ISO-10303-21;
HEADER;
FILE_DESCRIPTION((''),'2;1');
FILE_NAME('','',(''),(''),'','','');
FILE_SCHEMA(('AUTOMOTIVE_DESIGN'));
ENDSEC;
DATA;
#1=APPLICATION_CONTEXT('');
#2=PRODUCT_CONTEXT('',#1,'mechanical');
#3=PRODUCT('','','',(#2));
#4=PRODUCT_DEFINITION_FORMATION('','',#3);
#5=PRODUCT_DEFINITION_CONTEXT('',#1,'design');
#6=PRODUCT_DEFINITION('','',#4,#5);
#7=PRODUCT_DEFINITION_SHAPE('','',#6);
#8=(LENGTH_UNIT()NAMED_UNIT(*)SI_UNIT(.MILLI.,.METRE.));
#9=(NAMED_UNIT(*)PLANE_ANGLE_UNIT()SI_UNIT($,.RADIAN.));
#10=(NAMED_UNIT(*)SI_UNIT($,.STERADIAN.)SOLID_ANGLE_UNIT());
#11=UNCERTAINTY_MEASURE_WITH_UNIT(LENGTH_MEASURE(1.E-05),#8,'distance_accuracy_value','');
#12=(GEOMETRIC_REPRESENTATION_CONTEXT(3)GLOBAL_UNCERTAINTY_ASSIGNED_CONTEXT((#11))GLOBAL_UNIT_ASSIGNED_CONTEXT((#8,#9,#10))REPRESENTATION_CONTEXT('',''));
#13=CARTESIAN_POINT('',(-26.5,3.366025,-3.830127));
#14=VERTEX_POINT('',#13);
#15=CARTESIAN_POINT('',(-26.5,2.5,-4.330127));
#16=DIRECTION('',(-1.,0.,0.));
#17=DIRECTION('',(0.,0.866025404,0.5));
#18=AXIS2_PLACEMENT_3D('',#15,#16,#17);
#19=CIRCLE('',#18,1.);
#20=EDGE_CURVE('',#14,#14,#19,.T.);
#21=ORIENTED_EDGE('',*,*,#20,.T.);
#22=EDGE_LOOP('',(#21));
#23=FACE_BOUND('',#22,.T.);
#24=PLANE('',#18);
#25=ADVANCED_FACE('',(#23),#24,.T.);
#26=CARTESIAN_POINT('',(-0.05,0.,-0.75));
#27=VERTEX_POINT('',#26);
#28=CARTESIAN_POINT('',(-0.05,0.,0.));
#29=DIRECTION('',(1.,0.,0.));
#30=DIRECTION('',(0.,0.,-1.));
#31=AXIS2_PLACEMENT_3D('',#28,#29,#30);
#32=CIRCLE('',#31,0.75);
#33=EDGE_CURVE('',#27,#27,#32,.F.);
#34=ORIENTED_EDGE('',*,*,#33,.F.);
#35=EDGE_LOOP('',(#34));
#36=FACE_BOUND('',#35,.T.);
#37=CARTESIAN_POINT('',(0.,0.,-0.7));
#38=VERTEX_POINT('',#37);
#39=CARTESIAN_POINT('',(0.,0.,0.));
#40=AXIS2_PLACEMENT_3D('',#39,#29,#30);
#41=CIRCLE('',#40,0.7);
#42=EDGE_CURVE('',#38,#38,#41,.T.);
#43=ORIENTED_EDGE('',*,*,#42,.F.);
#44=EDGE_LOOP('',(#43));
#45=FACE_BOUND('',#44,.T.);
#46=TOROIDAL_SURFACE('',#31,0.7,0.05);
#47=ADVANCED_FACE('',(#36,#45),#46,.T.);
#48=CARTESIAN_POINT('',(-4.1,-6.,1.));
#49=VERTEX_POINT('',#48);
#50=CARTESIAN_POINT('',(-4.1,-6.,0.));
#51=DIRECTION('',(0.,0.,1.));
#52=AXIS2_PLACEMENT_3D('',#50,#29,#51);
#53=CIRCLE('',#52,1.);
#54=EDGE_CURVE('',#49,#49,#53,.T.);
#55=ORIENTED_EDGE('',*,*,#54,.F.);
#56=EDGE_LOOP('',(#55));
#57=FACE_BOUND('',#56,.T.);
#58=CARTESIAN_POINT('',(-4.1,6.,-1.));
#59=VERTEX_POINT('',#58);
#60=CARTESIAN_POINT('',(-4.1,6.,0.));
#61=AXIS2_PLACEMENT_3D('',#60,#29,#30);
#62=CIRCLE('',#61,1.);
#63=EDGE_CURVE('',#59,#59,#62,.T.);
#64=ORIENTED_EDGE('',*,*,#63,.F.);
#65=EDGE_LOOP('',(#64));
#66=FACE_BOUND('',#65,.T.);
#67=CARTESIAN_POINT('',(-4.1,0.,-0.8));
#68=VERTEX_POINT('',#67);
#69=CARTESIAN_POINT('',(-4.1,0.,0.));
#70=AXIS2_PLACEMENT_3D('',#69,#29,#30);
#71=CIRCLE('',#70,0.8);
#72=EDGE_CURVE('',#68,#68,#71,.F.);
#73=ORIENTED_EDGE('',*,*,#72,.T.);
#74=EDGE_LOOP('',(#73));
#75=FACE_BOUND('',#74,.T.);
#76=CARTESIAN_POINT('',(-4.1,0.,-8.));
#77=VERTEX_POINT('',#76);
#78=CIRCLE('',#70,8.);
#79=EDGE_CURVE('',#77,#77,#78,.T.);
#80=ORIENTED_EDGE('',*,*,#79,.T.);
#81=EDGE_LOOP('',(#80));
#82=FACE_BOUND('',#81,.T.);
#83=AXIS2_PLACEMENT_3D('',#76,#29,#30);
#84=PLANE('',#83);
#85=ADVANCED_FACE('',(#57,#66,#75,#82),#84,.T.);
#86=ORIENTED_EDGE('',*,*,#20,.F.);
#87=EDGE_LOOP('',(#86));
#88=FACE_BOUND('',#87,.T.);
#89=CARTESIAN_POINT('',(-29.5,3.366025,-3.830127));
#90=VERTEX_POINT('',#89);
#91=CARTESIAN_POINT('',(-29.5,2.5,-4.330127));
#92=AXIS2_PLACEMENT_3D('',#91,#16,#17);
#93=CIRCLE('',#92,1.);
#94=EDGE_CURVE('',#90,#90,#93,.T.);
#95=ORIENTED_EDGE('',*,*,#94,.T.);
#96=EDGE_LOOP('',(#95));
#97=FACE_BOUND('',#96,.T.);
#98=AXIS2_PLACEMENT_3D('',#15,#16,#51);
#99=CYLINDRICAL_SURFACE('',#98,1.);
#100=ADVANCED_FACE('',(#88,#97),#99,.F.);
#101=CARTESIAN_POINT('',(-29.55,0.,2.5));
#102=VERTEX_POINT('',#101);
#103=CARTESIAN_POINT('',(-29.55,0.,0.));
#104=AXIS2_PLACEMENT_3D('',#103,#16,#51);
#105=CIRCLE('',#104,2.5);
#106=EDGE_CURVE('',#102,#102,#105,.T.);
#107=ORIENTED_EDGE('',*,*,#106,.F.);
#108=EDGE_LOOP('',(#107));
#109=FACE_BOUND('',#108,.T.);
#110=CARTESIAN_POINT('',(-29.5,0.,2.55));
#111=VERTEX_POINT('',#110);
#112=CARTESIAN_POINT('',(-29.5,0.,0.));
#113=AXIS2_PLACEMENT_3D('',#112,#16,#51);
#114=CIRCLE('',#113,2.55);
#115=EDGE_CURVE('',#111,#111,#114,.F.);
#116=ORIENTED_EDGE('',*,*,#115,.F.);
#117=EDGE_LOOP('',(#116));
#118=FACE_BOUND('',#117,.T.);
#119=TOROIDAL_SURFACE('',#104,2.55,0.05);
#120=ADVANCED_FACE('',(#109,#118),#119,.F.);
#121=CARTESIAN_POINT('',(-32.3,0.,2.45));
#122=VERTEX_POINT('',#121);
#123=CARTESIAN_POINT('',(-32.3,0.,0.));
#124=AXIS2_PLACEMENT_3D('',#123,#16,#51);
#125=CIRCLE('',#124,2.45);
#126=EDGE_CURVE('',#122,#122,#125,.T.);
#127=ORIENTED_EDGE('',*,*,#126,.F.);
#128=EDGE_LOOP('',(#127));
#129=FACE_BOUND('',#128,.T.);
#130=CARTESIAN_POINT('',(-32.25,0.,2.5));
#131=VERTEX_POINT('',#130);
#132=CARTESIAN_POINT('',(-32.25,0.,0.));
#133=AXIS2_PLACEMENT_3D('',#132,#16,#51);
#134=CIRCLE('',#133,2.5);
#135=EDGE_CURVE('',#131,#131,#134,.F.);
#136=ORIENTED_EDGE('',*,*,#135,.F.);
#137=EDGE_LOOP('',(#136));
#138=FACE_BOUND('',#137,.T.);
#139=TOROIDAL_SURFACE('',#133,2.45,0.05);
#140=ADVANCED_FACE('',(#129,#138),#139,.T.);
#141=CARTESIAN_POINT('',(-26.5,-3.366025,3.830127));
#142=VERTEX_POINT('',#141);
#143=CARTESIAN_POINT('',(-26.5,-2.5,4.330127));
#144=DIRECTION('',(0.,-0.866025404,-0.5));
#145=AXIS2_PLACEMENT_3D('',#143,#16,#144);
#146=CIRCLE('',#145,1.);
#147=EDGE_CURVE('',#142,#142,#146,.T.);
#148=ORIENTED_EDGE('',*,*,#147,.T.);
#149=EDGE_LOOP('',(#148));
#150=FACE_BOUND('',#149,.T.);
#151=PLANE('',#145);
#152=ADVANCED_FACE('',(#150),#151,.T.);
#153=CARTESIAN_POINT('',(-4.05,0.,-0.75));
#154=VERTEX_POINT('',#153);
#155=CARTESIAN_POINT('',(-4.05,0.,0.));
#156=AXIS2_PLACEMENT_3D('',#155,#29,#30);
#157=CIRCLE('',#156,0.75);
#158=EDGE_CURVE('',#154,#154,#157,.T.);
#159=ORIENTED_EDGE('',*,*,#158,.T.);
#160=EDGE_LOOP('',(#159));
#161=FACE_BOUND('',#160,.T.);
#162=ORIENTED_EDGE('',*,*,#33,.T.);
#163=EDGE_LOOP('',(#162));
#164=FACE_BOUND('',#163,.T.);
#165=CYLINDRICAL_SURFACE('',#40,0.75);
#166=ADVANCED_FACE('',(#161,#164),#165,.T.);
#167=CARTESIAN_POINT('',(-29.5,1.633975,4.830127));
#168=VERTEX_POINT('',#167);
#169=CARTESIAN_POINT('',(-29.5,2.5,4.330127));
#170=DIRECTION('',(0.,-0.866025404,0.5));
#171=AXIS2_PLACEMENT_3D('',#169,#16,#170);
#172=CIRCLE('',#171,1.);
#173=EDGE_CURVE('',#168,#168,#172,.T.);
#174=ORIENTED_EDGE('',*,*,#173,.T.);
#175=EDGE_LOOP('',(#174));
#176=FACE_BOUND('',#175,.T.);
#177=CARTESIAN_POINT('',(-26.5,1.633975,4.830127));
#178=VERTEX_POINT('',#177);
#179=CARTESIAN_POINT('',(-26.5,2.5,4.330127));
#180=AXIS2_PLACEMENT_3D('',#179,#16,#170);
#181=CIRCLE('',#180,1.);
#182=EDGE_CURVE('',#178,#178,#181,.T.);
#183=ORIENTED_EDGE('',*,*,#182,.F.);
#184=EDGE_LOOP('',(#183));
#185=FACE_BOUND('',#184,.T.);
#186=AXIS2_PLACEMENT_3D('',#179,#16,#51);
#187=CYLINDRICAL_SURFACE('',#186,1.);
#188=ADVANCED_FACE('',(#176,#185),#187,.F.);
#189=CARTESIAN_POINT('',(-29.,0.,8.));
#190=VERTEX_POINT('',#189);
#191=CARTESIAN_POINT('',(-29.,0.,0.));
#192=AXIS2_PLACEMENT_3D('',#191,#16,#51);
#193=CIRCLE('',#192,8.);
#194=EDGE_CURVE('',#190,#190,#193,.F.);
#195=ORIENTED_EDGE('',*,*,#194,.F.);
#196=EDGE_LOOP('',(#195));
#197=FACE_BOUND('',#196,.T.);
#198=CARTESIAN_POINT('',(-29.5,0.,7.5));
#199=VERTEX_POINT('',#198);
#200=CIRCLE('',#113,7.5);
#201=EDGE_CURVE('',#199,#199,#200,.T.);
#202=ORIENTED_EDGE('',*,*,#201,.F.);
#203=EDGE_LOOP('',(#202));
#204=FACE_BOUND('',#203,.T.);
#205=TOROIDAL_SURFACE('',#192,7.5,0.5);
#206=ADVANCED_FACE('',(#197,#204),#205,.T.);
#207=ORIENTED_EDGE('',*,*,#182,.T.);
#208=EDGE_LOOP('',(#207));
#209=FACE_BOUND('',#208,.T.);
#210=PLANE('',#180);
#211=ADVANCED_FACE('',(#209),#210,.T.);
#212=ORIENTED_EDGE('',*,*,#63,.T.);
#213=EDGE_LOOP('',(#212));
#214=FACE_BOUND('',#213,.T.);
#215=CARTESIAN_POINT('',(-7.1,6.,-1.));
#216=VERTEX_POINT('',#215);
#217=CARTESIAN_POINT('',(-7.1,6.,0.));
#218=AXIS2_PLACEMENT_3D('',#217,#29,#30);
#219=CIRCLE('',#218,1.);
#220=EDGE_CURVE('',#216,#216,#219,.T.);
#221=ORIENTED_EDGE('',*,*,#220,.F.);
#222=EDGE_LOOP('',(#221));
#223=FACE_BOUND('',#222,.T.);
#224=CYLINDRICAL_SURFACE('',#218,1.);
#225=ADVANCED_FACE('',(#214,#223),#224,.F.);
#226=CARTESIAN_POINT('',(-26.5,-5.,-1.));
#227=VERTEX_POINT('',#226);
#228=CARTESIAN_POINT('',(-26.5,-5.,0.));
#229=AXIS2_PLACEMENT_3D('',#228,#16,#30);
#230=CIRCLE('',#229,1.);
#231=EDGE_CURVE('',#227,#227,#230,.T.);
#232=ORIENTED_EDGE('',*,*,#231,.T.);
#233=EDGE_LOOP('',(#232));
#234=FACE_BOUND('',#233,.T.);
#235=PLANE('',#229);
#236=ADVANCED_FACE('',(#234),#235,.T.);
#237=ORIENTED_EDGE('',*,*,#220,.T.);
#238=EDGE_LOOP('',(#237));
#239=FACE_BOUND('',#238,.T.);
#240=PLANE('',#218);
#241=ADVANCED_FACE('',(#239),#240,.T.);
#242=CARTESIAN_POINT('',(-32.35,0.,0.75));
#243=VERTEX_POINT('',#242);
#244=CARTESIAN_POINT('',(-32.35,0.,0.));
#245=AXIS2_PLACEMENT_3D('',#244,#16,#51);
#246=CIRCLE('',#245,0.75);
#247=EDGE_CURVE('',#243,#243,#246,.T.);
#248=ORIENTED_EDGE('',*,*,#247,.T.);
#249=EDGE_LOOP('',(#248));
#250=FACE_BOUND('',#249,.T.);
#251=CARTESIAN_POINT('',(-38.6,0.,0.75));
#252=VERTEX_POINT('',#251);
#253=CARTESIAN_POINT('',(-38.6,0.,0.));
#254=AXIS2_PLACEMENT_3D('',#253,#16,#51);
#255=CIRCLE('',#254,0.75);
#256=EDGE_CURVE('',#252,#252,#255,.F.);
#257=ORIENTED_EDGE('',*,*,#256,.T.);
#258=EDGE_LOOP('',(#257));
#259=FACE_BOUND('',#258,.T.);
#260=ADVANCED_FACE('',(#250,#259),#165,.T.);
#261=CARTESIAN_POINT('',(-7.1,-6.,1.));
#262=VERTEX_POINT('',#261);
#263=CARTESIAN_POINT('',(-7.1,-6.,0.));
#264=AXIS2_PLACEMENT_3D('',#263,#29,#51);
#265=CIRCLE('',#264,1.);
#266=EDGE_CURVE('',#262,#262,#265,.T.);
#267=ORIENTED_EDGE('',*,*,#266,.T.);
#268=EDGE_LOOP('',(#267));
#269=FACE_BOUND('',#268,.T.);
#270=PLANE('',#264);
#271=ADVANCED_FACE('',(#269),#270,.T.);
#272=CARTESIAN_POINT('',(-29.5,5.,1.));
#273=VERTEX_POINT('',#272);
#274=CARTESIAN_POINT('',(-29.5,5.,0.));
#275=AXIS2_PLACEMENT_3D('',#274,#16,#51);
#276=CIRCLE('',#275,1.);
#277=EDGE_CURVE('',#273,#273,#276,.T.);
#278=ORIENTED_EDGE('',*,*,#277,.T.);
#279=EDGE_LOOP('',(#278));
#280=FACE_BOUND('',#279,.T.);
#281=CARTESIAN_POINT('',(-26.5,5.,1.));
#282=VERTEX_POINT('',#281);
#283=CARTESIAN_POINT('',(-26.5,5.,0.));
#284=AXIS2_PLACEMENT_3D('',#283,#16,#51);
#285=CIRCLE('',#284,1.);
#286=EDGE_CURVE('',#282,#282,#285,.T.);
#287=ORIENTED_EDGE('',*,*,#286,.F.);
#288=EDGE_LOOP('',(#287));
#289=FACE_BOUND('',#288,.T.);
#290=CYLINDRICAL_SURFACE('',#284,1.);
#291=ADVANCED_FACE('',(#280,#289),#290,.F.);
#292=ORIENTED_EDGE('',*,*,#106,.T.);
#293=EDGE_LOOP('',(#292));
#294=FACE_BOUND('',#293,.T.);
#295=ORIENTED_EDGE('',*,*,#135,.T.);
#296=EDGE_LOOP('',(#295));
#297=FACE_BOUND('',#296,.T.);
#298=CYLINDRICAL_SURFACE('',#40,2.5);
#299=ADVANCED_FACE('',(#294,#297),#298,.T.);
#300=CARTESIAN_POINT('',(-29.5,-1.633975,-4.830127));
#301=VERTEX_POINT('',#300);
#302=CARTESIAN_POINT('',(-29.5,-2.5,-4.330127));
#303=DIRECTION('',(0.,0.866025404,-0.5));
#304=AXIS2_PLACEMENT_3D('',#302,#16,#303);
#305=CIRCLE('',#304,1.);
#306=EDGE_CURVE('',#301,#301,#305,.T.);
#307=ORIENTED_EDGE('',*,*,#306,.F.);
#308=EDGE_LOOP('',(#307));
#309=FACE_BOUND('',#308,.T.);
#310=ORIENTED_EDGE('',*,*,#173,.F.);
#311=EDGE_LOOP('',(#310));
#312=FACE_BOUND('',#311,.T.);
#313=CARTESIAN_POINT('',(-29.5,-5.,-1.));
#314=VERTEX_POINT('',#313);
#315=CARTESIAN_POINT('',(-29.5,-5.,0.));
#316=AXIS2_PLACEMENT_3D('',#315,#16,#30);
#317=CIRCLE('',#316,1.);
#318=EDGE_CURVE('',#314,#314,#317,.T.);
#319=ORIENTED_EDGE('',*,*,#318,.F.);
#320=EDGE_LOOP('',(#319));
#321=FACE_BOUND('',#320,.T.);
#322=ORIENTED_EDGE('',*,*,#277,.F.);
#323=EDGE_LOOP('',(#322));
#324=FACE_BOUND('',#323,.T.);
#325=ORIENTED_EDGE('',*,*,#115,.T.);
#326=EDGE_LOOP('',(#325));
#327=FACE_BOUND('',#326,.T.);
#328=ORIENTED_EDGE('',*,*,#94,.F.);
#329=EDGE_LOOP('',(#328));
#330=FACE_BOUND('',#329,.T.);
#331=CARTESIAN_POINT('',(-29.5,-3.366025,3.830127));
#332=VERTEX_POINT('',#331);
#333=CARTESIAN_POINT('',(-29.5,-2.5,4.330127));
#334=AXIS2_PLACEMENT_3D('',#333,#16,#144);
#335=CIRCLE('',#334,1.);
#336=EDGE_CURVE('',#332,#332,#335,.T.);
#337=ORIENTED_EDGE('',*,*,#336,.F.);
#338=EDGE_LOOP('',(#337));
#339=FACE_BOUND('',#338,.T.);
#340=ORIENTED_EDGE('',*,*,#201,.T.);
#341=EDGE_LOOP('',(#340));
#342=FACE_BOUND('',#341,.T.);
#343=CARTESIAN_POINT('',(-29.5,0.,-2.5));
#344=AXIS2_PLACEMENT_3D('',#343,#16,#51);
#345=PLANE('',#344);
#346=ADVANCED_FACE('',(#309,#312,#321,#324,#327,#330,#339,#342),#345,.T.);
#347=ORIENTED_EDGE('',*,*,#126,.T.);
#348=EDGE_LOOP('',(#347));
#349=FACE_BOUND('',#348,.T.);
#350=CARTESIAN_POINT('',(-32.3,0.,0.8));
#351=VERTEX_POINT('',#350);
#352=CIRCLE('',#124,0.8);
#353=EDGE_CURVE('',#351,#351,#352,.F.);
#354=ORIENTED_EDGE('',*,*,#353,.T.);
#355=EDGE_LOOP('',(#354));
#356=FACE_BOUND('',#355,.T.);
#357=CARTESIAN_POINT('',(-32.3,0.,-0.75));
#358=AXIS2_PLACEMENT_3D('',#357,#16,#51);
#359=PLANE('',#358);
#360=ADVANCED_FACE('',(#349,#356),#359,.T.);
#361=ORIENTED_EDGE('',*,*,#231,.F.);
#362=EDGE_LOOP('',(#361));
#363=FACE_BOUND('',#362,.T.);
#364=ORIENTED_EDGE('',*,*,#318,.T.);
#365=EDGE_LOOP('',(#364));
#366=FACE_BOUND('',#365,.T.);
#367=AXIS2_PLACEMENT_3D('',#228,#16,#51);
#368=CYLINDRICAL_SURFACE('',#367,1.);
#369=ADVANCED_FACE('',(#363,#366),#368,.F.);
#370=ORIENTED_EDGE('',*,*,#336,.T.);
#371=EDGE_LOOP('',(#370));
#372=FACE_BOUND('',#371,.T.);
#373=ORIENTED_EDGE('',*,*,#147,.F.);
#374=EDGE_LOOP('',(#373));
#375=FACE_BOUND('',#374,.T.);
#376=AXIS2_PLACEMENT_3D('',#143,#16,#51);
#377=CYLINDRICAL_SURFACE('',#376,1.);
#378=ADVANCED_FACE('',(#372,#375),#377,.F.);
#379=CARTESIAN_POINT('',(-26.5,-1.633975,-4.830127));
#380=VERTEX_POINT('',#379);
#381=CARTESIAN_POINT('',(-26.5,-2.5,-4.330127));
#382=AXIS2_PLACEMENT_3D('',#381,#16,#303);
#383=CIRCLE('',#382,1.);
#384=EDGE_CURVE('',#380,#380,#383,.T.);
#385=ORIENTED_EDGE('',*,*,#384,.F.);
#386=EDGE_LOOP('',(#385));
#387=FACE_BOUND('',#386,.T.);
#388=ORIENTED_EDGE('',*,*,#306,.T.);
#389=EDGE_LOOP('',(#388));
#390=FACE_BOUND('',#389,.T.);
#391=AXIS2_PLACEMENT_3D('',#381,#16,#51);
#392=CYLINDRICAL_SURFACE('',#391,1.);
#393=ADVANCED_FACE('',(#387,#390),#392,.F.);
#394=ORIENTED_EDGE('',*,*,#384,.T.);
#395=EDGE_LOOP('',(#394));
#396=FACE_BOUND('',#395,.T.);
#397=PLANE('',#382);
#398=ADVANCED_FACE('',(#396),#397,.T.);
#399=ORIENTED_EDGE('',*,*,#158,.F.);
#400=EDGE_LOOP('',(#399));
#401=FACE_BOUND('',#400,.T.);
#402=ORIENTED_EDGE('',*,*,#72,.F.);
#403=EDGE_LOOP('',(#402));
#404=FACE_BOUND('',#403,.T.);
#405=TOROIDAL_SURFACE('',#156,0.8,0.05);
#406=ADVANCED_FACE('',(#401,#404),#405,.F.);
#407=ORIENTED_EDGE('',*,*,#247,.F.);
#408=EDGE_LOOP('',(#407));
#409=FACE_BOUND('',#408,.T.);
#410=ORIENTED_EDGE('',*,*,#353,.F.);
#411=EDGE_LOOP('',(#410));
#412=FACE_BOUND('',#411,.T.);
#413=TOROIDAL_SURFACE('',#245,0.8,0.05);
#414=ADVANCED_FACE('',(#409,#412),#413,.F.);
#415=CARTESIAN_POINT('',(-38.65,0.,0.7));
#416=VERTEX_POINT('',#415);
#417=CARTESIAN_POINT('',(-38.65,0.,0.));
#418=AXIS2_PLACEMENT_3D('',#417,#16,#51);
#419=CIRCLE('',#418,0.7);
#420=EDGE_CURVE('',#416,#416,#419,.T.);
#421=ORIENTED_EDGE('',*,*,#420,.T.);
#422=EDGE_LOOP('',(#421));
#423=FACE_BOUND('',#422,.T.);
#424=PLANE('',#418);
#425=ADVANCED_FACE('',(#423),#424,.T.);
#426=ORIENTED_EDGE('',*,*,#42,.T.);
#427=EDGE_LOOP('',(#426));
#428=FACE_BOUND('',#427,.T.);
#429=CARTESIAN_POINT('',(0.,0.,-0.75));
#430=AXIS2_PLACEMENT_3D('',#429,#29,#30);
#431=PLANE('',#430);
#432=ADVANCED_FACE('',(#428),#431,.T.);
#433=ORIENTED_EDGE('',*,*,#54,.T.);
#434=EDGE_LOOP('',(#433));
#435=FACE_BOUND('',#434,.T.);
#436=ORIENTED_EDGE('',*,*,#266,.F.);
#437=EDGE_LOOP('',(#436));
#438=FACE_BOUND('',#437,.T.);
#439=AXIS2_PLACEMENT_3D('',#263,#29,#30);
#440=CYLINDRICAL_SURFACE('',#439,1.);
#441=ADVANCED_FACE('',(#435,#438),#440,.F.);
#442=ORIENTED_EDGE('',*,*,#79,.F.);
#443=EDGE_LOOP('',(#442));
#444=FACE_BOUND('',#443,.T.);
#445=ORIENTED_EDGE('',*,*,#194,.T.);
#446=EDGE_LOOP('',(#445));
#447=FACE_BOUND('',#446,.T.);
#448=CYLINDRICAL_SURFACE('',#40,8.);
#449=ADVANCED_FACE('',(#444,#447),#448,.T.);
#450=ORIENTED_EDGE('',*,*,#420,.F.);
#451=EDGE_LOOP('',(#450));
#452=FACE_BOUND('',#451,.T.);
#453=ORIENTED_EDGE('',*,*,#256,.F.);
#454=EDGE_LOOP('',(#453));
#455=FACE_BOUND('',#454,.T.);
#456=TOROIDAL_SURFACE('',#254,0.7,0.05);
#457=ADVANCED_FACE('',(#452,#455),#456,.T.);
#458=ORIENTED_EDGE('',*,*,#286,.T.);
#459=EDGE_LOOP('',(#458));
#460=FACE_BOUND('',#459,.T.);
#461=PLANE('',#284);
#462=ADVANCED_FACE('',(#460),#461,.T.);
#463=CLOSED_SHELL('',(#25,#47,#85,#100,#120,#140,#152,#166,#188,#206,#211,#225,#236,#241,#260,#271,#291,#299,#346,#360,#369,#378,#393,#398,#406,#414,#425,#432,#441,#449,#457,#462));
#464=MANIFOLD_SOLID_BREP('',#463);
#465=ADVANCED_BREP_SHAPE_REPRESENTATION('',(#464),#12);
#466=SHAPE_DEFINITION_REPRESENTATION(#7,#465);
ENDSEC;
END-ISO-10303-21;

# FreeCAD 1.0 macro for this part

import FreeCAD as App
import Part
import Sketcher

V = App.Vector
Q = App.Units.Quantity


def edges_at(feature, points):
    """Names of the edges that pass closest to the given points."""
    edges = feature.Shape.Edges
    near = lambda p: min(range(len(edges)), key=lambda i: edges[i].distToShape(Part.Vertex(*p))[0])
    return sorted({f"Edge{near(p) + 1}" for p in points})


def add_polygon(sketch, points):
    """Adds a closed chain of lines whose ends are joined by coincident constraints."""
    first, n = sketch.GeometryCount, len(points)
    for a, b in zip(points, points[1:] + points[:1]):
        sketch.addGeometry(Part.LineSegment(App.Vector(*a, 0), App.Vector(*b, 0)), False)
    for i in range(n):
        sketch.addConstraint(Sketcher.Constraint("Coincident", first + i, 2, first + (i + 1) % n, 1))

doc = App.newDocument("Part")
body = doc.addObject("PartDesign::Body", "Body")

# Sketch on XZ plane
sketch1 = body.newObject("Sketcher::SketchObject", "Sketch")
sketch1.AttachmentSupport = (doc.getObject("XZ_Plane"), [""])
sketch1.MapMode = "FlatFace"
add_polygon(sketch1, [(-38.65, 0), (0, 0), (0, -0.75), (-4.1, -0.75), (-4.1, -8), (-29.5, -8), (-29.5, -2.5), (-32.3, -2.5), (-32.3, -0.75), (-38.65, -0.75)])  # lines 0-9
sketch1.addConstraint([
    Sketcher.Constraint("Horizontal", 0),
    Sketcher.Constraint("Vertical", 1),
    Sketcher.Constraint("Horizontal", 2),
    Sketcher.Constraint("Vertical", 3),
    Sketcher.Constraint("Horizontal", 4),
    Sketcher.Constraint("Vertical", 5),
    Sketcher.Constraint("Horizontal", 6),
    Sketcher.Constraint("Vertical", 7),
    Sketcher.Constraint("Horizontal", 8),
    Sketcher.Constraint("Vertical", 9),
    Sketcher.Constraint("Coincident", 0, 2, -1, 1),
    Sketcher.Constraint("Horizontal", 2, 2, 7, 2),
    Sketcher.Constraint("DistanceX", 2, 2, 2, 1, Q("4.1 mm")),
    Sketcher.Constraint("DistanceX", 4, 2, 4, 1, Q("25.4 mm")),
    Sketcher.Constraint("DistanceX", 6, 2, 6, 1, Q("2.8 mm")),
    Sketcher.Constraint("DistanceY", 5, 1, 5, 2, Q("5.5 mm")),
    Sketcher.Constraint("DistanceY", 3, 2, -1, 1, Q("8 mm")),
    Sketcher.Constraint("DistanceX", 0, 1, 0, 2, Q("38.65 mm")),
    Sketcher.Constraint("DistanceY", 1, 2, 1, 1, Q("0.75 mm")),
])
revolution = body.newObject("PartDesign::Revolution", "Revolution")
revolution.Profile = sketch1
revolution.ReferenceAxis = (sketch1, ["H_Axis"])
revolution.Angle = 360

# Sketch on YZ plane
sketch2 = body.newObject("Sketcher::SketchObject", "Sketch001")
sketch2.AttachmentSupport = (doc.getObject("YZ_Plane"), [""])
sketch2.MapMode = "FlatFace"
sketch2.AttachmentOffset = App.Placement(V(0, 0, -29.5), App.Rotation())
sketch2.addGeometry(Part.Circle(V(5, 0, 0), V(0, 0, 1), 1), False)
sketch2.addConstraint([
    Sketcher.Constraint("PointOnObject", 0, 3, -1),
    Sketcher.Constraint("Diameter", 0, Q("2 mm")),
    Sketcher.Constraint("DistanceX", -1, 1, 0, 3, Q("5 mm")),
])
pocket1 = body.newObject("PartDesign::Pocket", "Pocket")
pocket1.Profile = sketch2
pocket1.Length = 3
pocket1.Reversed = True
doc.recompute()

polarpattern = body.newObject("PartDesign::PolarPattern", "PolarPattern")
polarpattern.Originals = [pocket1]
polarpattern.Axis = (doc.getObject("X_Axis"), [""])
polarpattern.Angle = 360
polarpattern.Occurrences = 6
body.Tip = polarpattern
doc.recompute()

fillet = body.newObject("PartDesign::Fillet", "Fillet")
fillet.Base = (polarpattern, edges_at(polarpattern, [(-29.5, 0, 8)]))
fillet.Radius = 0.5
doc.recompute()

fillet2 = body.newObject("PartDesign::Fillet", "Fillet001")
fillet2.Base = (fillet, edges_at(fillet, [
    (-32.3, 0, 2.5),
    (-32.3, 0, 0.75),
    (-38.65, 0, 0.75),
    (0, 0, 0.75),
    (-4.1, 0, 0.75),
    (-29.5, 0, 2.5),
]))
fillet2.Radius = 0.05

# Sketch on YZ plane
sketch3 = body.newObject("Sketcher::SketchObject", "Sketch002")
sketch3.AttachmentSupport = (doc.getObject("YZ_Plane"), [""])
sketch3.MapMode = "FlatFace"
sketch3.AttachmentOffset = App.Placement(V(0, 0, -4.1), App.Rotation())
sketch3.addGeometry(Part.Circle(V(6, 0, 0), V(0, 0, 1), 1), False)
sketch3.addConstraint([
    Sketcher.Constraint("PointOnObject", 0, 3, -1),
    Sketcher.Constraint("Diameter", 0, Q("2 mm")),
    Sketcher.Constraint("DistanceX", -1, 1, 0, 3, Q("6 mm")),
])
pocket2 = body.newObject("PartDesign::Pocket", "Pocket001")
pocket2.Profile = sketch3
pocket2.Length = 3
doc.recompute()

polarpattern2 = body.newObject("PartDesign::PolarPattern", "PolarPattern001")
polarpattern2.Originals = [pocket2]
polarpattern2.Axis = (doc.getObject("X_Axis"), [""])
polarpattern2.Angle = 360
polarpattern2.Occurrences = 2
body.Tip = polarpattern2

doc.recompute()
